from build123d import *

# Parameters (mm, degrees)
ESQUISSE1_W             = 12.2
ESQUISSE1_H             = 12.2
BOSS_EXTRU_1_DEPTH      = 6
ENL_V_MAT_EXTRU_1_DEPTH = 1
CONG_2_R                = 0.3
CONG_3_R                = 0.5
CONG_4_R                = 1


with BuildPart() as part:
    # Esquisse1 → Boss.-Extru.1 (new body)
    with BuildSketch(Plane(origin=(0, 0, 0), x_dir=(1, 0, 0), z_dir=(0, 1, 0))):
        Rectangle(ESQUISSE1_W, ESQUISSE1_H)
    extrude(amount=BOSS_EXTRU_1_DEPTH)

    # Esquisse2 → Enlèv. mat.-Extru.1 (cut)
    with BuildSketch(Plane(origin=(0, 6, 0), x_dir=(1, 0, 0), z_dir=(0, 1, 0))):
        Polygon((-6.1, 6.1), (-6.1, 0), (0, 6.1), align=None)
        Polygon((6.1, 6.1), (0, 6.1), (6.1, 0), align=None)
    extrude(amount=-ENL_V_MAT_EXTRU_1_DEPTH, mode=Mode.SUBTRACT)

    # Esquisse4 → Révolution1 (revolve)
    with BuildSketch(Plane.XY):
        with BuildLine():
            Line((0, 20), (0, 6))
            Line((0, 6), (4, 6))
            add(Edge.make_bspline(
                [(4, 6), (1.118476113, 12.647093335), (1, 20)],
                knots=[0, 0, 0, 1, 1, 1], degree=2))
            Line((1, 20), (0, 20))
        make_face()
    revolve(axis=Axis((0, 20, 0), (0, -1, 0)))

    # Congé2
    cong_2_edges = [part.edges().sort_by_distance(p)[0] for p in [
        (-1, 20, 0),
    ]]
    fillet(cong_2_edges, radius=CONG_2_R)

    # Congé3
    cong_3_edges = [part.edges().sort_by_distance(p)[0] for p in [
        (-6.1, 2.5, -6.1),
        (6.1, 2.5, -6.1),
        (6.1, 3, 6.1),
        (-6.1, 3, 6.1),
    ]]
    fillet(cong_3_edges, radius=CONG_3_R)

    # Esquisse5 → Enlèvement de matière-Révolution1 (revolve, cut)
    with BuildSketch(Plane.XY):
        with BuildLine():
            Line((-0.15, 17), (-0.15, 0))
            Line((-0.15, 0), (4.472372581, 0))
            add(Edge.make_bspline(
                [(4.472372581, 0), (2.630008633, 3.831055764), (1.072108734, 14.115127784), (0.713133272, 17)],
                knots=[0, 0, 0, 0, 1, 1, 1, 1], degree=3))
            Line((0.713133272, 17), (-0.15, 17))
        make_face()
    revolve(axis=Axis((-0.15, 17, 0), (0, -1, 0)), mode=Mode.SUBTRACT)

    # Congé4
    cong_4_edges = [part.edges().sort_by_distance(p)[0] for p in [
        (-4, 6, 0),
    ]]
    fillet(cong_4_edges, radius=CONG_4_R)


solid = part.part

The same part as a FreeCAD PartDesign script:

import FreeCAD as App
import Part
import Sketcher

V = App.Vector


def edges_at(feature, points):
    """Names of the edges that pass closest to the given points."""
    edges = feature.Shape.Edges
    near = lambda p: min(range(len(edges)), key=lambda i: edges[i].distToShape(Part.Vertex(*p))[0])
    return sorted({f"Edge{near(p) + 1}" for p in points})


def add_polygon(sketch, points):
    """Adds a closed chain of lines whose ends are joined by coincident constraints."""
    first, n = sketch.GeometryCount, len(points)
    for a, b in zip(points, points[1:] + points[:1]):
        sketch.addGeometry(Part.LineSegment(App.Vector(*a, 0), App.Vector(*b, 0)), False)
    for i in range(n):
        sketch.addConstraint(Sketcher.Constraint("Coincident", first + i, 2, first + (i + 1) % n, 1))

doc = App.newDocument("Part")
params = doc.addObject("Spreadsheet::Sheet", "Params")
for row, (alias, value) in enumerate([
    ("sketch1_width", "12.2 mm"),
    ("pad1_length", "6 mm"),
    ("sketch2_width", "6.1 mm"),
    ("pocket1_length", "1 mm"),
    ("revolution_angle", "360 deg"),
    ("fillet_radius", "0.3 mm"),
    ("fillet2_radius", "0.5 mm"),
    ("groove_angle", "360 deg"),
    ("fillet3_radius", "1 mm"),
], start=1):
    params.set(f"A{row}", alias)
    params.set(f"B{row}", "=" + value)
    params.setAlias(f"B{row}", alias)

body = doc.addObject("PartDesign::Body", "Body")

# Sketch on XZ plane
sketch1 = doc.addObject("Sketcher::SketchObject", "Sketch")
body.addObject(sketch1)
sketch1.AttachmentSupport = (doc.XZ_Plane, [""])
sketch1.MapMode = "FlatFace"
add_polygon(sketch1, [(-6.1, -6.1), (-6.1, 6.1), (6.1, 6.1), (6.1, -6.1)])  # lines 0-3
sketch1.addConstraint([
    Sketcher.Constraint("Vertical", 0),
    Sketcher.Constraint("Horizontal", 1),
    Sketcher.Constraint("Vertical", 2),
    Sketcher.Constraint("Horizontal", 3),
    Sketcher.Constraint("Symmetric", 0, 2, 2, 2, -1, 1),
    Sketcher.Constraint("Equal", 3, 0),
    Sketcher.Constraint("DistanceX", 1, 1, 1, 2, 12.2),
])
sketch1.setExpression("Constraints[10]", "Params.sketch1_width")
pad1 = doc.addObject("PartDesign::Pad", "Pad")
body.addObject(pad1)
pad1.Profile = sketch1
pad1.setExpression("Length", "Params.pad1_length")
pad1.Reversed = True

# Sketch on XZ plane
sketch2 = doc.addObject("Sketcher::SketchObject", "Sketch001")
body.addObject(sketch2)
sketch2.AttachmentSupport = (doc.XZ_Plane, [""])
sketch2.MapMode = "FlatFace"
sketch2.AttachmentOffset = App.Placement(V(0, 0, -6), App.Rotation())
add_polygon(sketch2, [(-6.1, -6.1), (-6.1, 0), (0, -6.1)])  # lines 0-2
add_polygon(sketch2, [(6.1, -6.1), (0, -6.1), (6.1, 0)])  # lines 3-5
sketch2.addConstraint([
    Sketcher.Constraint("Vertical", 0),
    Sketcher.Constraint("Horizontal", 2),
    Sketcher.Constraint("Horizontal", 3),
    Sketcher.Constraint("Vertical", 5),
    Sketcher.Constraint("Coincident", 3, 2, 1, 2),
    Sketcher.Constraint("Symmetric", 0, 2, 4, 2, -1, 1),
    Sketcher.Constraint("PointOnObject", 0, 2, -1),
    Sketcher.Constraint("PointOnObject", 1, 2, -2),
    Sketcher.Constraint("Perpendicular", 1, 4),
    Sketcher.Constraint("DistanceX", 2, 2, 2, 1, 6.1),
])
sketch2.setExpression("Constraints[15]", "Params.sketch2_width")
pocket1 = doc.addObject("PartDesign::Pocket", "Pocket")
body.addObject(pocket1)
pocket1.Profile = sketch2
pocket1.setExpression("Length", "Params.pocket1_length")
pocket1.Reversed = True

# Sketch on XY plane
sketch3 = doc.addObject("Sketcher::SketchObject", "Sketch002")
body.addObject(sketch3)
sketch3.AttachmentSupport = (doc.XY_Plane, [""])
sketch3.MapMode = "FlatFace"
sketch3.addGeometry([
    Part.LineSegment(V(0, 20, 0), V(0, 6, 0)),
    Part.LineSegment(V(0, 6, 0), V(4, 6, 0)),
    Part.BSplineCurve([V(4, 6, 0), V(1.118476, 12.647093, 0), V(1, 20, 0)], [3, 3], [0, 1], False, 2, [1, 1, 1], False),
    Part.LineSegment(V(1, 20, 0), V(0, 20, 0)),
], False)
sketch3.addConstraint([
    Sketcher.Constraint("Block", 2),
    Sketcher.Constraint("Coincident", 0, 2, 1, 1),
    Sketcher.Constraint("Coincident", 1, 2, 2, 1),
    Sketcher.Constraint("Coincident", 2, 2, 3, 1),
    Sketcher.Constraint("Coincident", 3, 2, 0, 1),
    Sketcher.Constraint("Vertical", 0),
    Sketcher.Constraint("Horizontal", 1),
    Sketcher.Constraint("Horizontal", 3),
    Sketcher.Constraint("PointOnObject", 0, 2, -2),
])
revolution = doc.addObject("PartDesign::Revolution", "Revolution")
body.addObject(revolution)
revolution.Profile = sketch3
revolution.ReferenceAxis = (sketch3, ["V_Axis"])
revolution.setExpression("Angle", "Params.revolution_angle")
doc.recompute()

fillet = doc.addObject("PartDesign::Fillet", "Fillet")
body.addObject(fillet)
fillet.Base = (revolution, edges_at(revolution, [(-1, 20, 0)]))
fillet.setExpression("Radius", "Params.fillet_radius")
doc.recompute()

fillet2 = doc.addObject("PartDesign::Fillet", "Fillet001")
body.addObject(fillet2)
fillet2.Base = (fillet, edges_at(fillet, [
    (-6.1, 2.5, -6.1),
    (6.1, 2.5, -6.1),
    (6.1, 3, 6.1),
    (-6.1, 3, 6.1),
]))
fillet2.setExpression("Radius", "Params.fillet2_radius")

# Sketch on XY plane
sketch4 = doc.addObject("Sketcher::SketchObject", "Sketch003")
body.addObject(sketch4)
sketch4.AttachmentSupport = (doc.XY_Plane, [""])
sketch4.MapMode = "FlatFace"
sketch4.addGeometry([
    Part.LineSegment(V(-0.15, 17, 0), V(-0.15, 0, 0)),
    Part.LineSegment(V(-0.15, 0, 0), V(4.472373, 0, 0)),
    Part.BSplineCurve([V(4.472373, 0, 0), V(2.630009, 3.831056, 0), V(1.072109, 14.115128, 0), V(0.713133, 17, 0)], [4, 4], [0, 1], False, 3, [1, 1, 1, 1], False),
    Part.LineSegment(V(0.713133, 17, 0), V(-0.15, 17, 0)),
], False)
sketch4.addGeometry(Part.LineSegment(V(-0.15, 17, 0), V(-0.15, 0, 0)), True)  # axis
sketch4.addConstraint([
    Sketcher.Constraint("Block", 2),
    Sketcher.Constraint("Coincident", 0, 2, 1, 1),
    Sketcher.Constraint("Coincident", 1, 2, 2, 1),
    Sketcher.Constraint("Coincident", 2, 2, 3, 1),
    Sketcher.Constraint("Coincident", 3, 2, 0, 1),
    Sketcher.Constraint("Vertical", 0),
    Sketcher.Constraint("Horizontal", 1),
    Sketcher.Constraint("Horizontal", 3),
    Sketcher.Constraint("Vertical", 4),
    Sketcher.Constraint("Coincident", 4, 1, 3, 2),
    Sketcher.Constraint("PointOnObject", 4, 2, -1),
    Sketcher.Constraint("DistanceX", 0, 2, -1, 1, 0.15),
])
groove = doc.addObject("PartDesign::Groove", "Groove")
body.addObject(groove)
groove.Profile = sketch4
groove.ReferenceAxis = (sketch4, ["Axis0"])
groove.setExpression("Angle", "Params.groove_angle")
doc.recompute()

fillet3 = doc.addObject("PartDesign::Fillet", "Fillet002")
body.addObject(fillet3)
fillet3.Base = (groove, edges_at(groove, [(-4, 6, 0)]))
fillet3.setExpression("Radius", "Params.fillet3_radius")

doc.recompute()
